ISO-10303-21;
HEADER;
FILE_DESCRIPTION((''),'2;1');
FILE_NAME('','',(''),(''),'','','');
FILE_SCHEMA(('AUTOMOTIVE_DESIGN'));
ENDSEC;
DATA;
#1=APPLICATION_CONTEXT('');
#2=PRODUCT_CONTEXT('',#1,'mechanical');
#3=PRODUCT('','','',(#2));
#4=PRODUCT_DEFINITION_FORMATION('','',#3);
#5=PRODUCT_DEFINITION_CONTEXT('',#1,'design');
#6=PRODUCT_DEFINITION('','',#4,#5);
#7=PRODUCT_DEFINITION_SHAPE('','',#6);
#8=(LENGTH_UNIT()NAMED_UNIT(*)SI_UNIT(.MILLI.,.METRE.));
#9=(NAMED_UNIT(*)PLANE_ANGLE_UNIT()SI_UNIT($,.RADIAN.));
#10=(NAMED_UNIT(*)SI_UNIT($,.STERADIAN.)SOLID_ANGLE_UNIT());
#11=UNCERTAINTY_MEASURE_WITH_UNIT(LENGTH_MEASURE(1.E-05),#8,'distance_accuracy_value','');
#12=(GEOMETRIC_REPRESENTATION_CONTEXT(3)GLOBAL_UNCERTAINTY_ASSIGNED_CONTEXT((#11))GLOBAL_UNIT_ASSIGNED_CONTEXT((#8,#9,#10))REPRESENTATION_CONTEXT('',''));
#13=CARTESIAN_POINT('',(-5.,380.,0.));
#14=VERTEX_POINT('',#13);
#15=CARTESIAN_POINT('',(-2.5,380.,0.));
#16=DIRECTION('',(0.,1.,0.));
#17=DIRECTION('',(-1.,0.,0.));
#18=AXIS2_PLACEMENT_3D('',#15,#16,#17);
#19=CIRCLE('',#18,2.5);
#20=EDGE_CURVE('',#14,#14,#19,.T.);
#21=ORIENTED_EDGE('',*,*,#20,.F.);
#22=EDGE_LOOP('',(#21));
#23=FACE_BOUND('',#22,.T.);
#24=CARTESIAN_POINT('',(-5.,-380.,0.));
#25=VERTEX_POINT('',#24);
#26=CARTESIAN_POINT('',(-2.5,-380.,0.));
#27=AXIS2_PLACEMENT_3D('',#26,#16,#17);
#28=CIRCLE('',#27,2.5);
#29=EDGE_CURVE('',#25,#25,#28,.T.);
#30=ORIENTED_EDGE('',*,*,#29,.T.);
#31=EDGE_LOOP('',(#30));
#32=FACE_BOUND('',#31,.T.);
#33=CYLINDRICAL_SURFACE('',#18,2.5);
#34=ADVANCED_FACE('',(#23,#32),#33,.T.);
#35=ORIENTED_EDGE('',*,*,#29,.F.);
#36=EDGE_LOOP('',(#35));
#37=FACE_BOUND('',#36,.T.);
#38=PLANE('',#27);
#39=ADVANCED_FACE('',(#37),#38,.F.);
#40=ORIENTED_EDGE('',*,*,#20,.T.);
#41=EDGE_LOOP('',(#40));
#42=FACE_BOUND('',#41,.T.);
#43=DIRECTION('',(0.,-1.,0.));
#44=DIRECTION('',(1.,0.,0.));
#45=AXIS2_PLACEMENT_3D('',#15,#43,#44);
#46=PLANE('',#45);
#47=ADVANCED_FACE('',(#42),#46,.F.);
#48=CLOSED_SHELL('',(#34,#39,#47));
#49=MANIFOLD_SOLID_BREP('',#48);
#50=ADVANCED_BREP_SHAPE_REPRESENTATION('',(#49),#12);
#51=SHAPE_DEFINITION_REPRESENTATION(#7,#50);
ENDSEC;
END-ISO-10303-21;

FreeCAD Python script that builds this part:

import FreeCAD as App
import Part
import Sketcher
Q = App.Units.Quantity


def add_polygon(sketch, points):
    """Adds a closed chain of lines whose ends are joined by coincident constraints."""
    first, n = sketch.GeometryCount, len(points)
    for a, b in zip(points, points[1:] + points[:1]):
        sketch.addGeometry(Part.LineSegment(App.Vector(*a, 0), App.Vector(*b, 0)), False)
    for i in range(n):
        sketch.addConstraint(Sketcher.Constraint("Coincident", first + i, 2, first + (i + 1) % n, 1))

doc = App.newDocument("Part")
body = doc.addObject("PartDesign::Body", "Body")

# Sketch on XY plane
sketch1 = body.newObject("Sketcher::SketchObject", "Sketch")
sketch1.AttachmentSupport = (doc.getObject("XY_Plane"), [""])
sketch1.MapMode = "FlatFace"
add_polygon(sketch1, [(-2.5, 380), (-2.5, -380), (0, -380), (0, 380)])  # lines 0-3
sketch1.addGeometry(Part.LineSegment(App.Vector(-2.5, 380, 0), App.Vector(-2.5, -380, 0)), True)  # axis
sketch1.addConstraint([
    Sketcher.Constraint("Vertical", 0),
    Sketcher.Constraint("Horizontal", 1),
    Sketcher.Constraint("Vertical", 2),
    Sketcher.Constraint("Horizontal", 3),
    Sketcher.Constraint("Vertical", 4),
    Sketcher.Constraint("Coincident", 4, 1, 3, 2),
    Sketcher.Constraint("Symmetric", 1, 2, 2, 2, -1, 1),
    Sketcher.Constraint("Horizontal", 1, 2, 4, 2),
    Sketcher.Constraint("DistanceY", 0, 2, 0, 1, Q("760 mm")),
    Sketcher.Constraint("DistanceX", 1, 1, 1, 2, Q("2.5 mm")),
])
revolution = body.newObject("PartDesign::Revolution", "Revolution")
revolution.Profile = sketch1
revolution.ReferenceAxis = (sketch1, ["Axis0"])
revolution.Angle = 360

doc.recompute()
